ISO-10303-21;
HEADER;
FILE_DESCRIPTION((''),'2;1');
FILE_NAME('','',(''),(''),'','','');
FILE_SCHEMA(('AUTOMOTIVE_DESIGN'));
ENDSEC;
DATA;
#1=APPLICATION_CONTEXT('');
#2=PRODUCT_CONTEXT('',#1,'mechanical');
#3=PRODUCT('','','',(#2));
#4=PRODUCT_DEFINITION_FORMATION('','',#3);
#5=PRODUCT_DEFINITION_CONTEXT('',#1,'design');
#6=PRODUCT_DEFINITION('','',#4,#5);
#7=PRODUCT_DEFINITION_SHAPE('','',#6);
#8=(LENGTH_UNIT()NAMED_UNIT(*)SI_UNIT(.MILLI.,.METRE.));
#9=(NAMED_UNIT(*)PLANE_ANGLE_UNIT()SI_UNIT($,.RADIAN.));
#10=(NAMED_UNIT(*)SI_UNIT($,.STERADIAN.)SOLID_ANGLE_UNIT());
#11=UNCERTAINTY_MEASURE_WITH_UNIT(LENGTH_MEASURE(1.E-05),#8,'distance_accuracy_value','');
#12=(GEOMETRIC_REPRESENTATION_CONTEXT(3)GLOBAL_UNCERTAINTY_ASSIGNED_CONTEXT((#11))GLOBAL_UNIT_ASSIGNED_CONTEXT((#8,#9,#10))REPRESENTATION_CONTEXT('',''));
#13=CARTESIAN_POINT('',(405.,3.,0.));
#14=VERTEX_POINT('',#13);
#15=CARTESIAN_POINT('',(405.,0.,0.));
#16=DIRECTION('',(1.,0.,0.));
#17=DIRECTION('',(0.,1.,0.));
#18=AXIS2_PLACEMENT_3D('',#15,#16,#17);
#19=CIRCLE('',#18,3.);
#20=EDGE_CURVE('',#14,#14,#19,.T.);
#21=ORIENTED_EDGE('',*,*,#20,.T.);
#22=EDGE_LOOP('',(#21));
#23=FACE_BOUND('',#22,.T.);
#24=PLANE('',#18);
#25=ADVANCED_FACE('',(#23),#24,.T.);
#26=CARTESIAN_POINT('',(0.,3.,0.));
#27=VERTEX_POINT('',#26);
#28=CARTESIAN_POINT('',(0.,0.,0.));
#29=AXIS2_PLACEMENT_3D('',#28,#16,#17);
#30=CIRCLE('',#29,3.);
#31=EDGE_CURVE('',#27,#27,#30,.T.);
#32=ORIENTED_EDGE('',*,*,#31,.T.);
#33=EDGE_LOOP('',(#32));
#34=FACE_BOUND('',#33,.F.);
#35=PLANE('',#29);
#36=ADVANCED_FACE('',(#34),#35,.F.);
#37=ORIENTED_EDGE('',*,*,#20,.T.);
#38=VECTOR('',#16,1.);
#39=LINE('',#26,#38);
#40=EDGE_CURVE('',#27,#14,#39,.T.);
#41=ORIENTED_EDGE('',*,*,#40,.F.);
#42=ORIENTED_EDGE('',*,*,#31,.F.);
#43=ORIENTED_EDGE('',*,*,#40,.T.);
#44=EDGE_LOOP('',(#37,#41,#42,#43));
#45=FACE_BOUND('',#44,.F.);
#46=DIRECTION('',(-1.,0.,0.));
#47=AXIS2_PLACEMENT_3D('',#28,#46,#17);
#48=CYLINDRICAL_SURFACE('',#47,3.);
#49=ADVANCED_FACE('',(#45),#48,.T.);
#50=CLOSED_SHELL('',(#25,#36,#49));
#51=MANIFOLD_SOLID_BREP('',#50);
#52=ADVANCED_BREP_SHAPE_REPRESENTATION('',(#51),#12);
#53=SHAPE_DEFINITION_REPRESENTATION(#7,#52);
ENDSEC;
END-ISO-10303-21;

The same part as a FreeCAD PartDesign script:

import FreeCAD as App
import Part
import Sketcher
Q = App.Units.Quantity

doc = App.newDocument("Part")
body = doc.addObject("PartDesign::Body", "Body")

sketch1 = doc.addObject("Sketcher::SketchObject", "Sketch")
body.addObject(sketch1)
sketch1.AttachmentSupport = (doc.YZ_Plane, [""])
sketch1.MapMode = "FlatFace"
sketch1.addGeometry(Part.Circle(App.Vector(0, 0, 0), App.Vector(0, 0, 1), 3), False)
sketch1.addConstraint([
    Sketcher.Constraint("Coincident", 0, 3, -1, 1),
    Sketcher.Constraint("Diameter", 0, Q("6 mm")),
])
pad1 = doc.addObject("PartDesign::Pad", "Pad")
body.addObject(pad1)
pad1.Profile = sketch1
pad1.Length = 405

doc.recompute()
